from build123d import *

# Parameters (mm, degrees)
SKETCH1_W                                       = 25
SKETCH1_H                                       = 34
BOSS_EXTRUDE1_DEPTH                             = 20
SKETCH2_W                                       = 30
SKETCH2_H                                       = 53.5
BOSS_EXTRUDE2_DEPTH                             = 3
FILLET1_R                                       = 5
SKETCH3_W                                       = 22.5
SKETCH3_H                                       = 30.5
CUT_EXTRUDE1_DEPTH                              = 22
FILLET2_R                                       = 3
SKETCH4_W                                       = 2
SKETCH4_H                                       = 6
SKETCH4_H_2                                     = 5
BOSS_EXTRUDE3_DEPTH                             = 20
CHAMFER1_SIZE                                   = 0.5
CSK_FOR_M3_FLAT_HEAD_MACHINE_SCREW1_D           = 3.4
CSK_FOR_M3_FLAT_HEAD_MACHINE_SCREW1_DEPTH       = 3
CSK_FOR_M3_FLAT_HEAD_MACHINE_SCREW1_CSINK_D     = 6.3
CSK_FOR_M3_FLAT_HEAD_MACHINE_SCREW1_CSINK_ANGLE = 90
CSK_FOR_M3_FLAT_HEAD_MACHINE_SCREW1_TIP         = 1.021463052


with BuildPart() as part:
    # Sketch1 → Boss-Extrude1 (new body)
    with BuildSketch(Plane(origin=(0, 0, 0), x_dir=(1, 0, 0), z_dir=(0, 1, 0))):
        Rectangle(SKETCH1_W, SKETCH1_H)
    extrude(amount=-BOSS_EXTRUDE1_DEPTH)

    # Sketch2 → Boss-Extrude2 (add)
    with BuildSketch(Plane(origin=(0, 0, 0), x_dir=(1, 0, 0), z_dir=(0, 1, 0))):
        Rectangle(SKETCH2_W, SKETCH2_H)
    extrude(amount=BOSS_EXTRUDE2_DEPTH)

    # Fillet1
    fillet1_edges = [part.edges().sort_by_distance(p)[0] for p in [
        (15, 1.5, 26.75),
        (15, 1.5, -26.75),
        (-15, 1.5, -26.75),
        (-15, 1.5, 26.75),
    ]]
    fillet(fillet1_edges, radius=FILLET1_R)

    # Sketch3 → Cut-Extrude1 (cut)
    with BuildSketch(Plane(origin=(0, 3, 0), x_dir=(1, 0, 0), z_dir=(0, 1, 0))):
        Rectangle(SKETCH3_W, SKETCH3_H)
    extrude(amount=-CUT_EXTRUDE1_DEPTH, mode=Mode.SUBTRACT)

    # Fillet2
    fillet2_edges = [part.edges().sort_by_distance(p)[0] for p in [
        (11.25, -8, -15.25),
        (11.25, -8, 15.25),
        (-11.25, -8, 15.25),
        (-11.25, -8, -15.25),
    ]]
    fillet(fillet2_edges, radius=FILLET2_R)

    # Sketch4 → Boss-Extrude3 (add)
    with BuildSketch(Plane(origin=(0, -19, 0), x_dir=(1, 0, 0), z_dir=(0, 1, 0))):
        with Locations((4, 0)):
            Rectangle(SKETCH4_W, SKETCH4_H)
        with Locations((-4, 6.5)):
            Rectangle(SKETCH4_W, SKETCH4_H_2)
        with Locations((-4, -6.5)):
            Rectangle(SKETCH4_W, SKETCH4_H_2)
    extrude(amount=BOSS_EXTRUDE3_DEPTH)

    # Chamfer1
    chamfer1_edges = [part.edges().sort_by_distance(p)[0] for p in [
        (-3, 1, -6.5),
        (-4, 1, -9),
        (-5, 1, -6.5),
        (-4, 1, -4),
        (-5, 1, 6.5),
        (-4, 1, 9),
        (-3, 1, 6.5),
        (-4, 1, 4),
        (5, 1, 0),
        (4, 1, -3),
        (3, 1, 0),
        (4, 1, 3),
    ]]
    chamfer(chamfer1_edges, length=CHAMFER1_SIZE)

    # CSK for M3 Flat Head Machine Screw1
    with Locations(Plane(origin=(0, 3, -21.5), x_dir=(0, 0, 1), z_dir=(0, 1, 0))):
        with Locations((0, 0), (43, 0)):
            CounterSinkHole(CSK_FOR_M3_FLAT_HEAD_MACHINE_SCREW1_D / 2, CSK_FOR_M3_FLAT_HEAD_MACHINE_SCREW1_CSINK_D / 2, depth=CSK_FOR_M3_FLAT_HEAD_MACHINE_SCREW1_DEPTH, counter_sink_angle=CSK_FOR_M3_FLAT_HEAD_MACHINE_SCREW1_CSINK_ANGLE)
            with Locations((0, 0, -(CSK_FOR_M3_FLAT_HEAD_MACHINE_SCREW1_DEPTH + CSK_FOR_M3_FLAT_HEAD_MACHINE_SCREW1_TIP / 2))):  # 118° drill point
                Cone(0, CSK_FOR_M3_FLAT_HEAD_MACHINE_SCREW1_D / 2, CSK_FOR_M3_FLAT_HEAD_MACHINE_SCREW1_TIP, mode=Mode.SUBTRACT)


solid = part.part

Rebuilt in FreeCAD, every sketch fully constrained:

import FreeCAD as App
import Part
import Sketcher

V = App.Vector


def edges_at(feature, points):
    """Names of the edges that pass closest to the given points."""
    edges = feature.Shape.Edges
    near = lambda p: min(range(len(edges)), key=lambda i: edges[i].distToShape(Part.Vertex(*p))[0])
    return sorted({f"Edge{near(p) + 1}" for p in points})

doc = App.newDocument("Part")
body = doc.addObject("PartDesign::Body", "Body")

sketch1 = body.newObject("Sketcher::SketchObject", "Sketch")
sketch1.AttachmentSupport = (doc.getObject("XZ_Plane"), [""])
sketch1.MapMode = "FlatFace"
sketch1.addGeometry(Part.LineSegment(V(-12, -17, 0), V(-12, 17, 0)), False)
sketch1.addGeometry(Part.LineSegment(V(-12, 17, 0), V(12, 17, 0)), False)
sketch1.addGeometry(Part.LineSegment(V(12, 17, 0), V(12, -17, 0)), False)
sketch1.addGeometry(Part.LineSegment(V(12, -17, 0), V(-12, -17, 0)), False)
sketch1.addConstraint(Sketcher.Constraint("Coincident", 0, 2, 1, 1))
sketch1.addConstraint(Sketcher.Constraint("Coincident", 1, 2, 2, 1))
sketch1.addConstraint(Sketcher.Constraint("Coincident", 2, 2, 3, 1))
sketch1.addConstraint(Sketcher.Constraint("Coincident", 3, 2, 0, 1))
sketch1.addConstraint(Sketcher.Constraint("Vertical", 0))
sketch1.addConstraint(Sketcher.Constraint("Horizontal", 1))
sketch1.addConstraint(Sketcher.Constraint("Vertical", 2))
sketch1.addConstraint(Sketcher.Constraint("Horizontal", 3))
sketch1.addConstraint(Sketcher.Constraint("Symmetric", 0, 2, 2, 2, -1, 1))
sketch1.addConstraint(Sketcher.Constraint("DistanceX", 1, 1, 1, 2, 25.0))
sketch1.addConstraint(Sketcher.Constraint("DistanceY", 0, 1, 0, 2, 34.0))
pad1 = body.newObject("PartDesign::Pad", "Pad")
pad1.Profile = sketch1
pad1.Length = 20

sketch2 = body.newObject("Sketcher::SketchObject", "Sketch001")
sketch2.AttachmentSupport = (doc.getObject("XZ_Plane"), [""])
sketch2.MapMode = "FlatFace"
sketch2.addGeometry(Part.LineSegment(V(-15, -27, 0), V(-15, 27, 0)), False)
sketch2.addGeometry(Part.LineSegment(V(-15, 27, 0), V(15, 27, 0)), False)
sketch2.addGeometry(Part.LineSegment(V(15, 27, 0), V(15, -27, 0)), False)
sketch2.addGeometry(Part.LineSegment(V(15, -27, 0), V(-15, -27, 0)), False)
sketch2.addConstraint(Sketcher.Constraint("Coincident", 0, 2, 1, 1))
sketch2.addConstraint(Sketcher.Constraint("Coincident", 1, 2, 2, 1))
sketch2.addConstraint(Sketcher.Constraint("Coincident", 2, 2, 3, 1))
sketch2.addConstraint(Sketcher.Constraint("Coincident", 3, 2, 0, 1))
sketch2.addConstraint(Sketcher.Constraint("Vertical", 0))
sketch2.addConstraint(Sketcher.Constraint("Horizontal", 1))
sketch2.addConstraint(Sketcher.Constraint("Vertical", 2))
sketch2.addConstraint(Sketcher.Constraint("Horizontal", 3))
sketch2.addConstraint(Sketcher.Constraint("Symmetric", 0, 2, 2, 2, -1, 1))
sketch2.addConstraint(Sketcher.Constraint("DistanceX", 1, 1, 1, 2, 30.0))
sketch2.addConstraint(Sketcher.Constraint("DistanceY", 0, 1, 0, 2, 53.5))
pad2 = body.newObject("PartDesign::Pad", "Pad001")
pad2.Profile = sketch2
pad2.Length = 3
pad2.Reversed = True
doc.recompute()

fillet = body.newObject("PartDesign::Fillet", "Fillet")
fillet.Base = (pad2, edges_at(pad2, [
    (15, 1.5, 26.75),
    (15, 1.5, -26.75),
    (-15, 1.5, -26.75),
    (-15, 1.5, 26.75),
]))
fillet.Radius = 5

sketch3 = body.newObject("Sketcher::SketchObject", "Sketch002")
sketch3.AttachmentSupport = (doc.getObject("XZ_Plane"), [""])
sketch3.MapMode = "FlatFace"
sketch3.AttachmentOffset = App.Placement(V(0, 0, -3), App.Rotation())
sketch3.addGeometry(Part.LineSegment(V(-11, -15, 0), V(-11, 15, 0)), False)
sketch3.addGeometry(Part.LineSegment(V(-11, 15, 0), V(11, 15, 0)), False)
sketch3.addGeometry(Part.LineSegment(V(11, 15, 0), V(11, -15, 0)), False)
sketch3.addGeometry(Part.LineSegment(V(11, -15, 0), V(-11, -15, 0)), False)
sketch3.addConstraint(Sketcher.Constraint("Coincident", 0, 2, 1, 1))
sketch3.addConstraint(Sketcher.Constraint("Coincident", 1, 2, 2, 1))
sketch3.addConstraint(Sketcher.Constraint("Coincident", 2, 2, 3, 1))
sketch3.addConstraint(Sketcher.Constraint("Coincident", 3, 2, 0, 1))
sketch3.addConstraint(Sketcher.Constraint("Vertical", 0))
sketch3.addConstraint(Sketcher.Constraint("Horizontal", 1))
sketch3.addConstraint(Sketcher.Constraint("Vertical", 2))
sketch3.addConstraint(Sketcher.Constraint("Horizontal", 3))
sketch3.addConstraint(Sketcher.Constraint("Symmetric", 0, 2, 2, 2, -1, 1))
sketch3.addConstraint(Sketcher.Constraint("DistanceX", 1, 1, 1, 2, 22.5))
sketch3.addConstraint(Sketcher.Constraint("DistanceY", 0, 1, 0, 2, 30.5))
pocket1 = body.newObject("PartDesign::Pocket", "Pocket")
pocket1.Profile = sketch3
pocket1.Length = 22
pocket1.Reversed = True
doc.recompute()

fillet2 = body.newObject("PartDesign::Fillet", "Fillet001")
fillet2.Base = (pocket1, edges_at(pocket1, [
    (11.25, -8, -15.25),
    (11.25, -8, 15.25),
    (-11.25, -8, 15.25),
    (-11.25, -8, -15.25),
]))
fillet2.Radius = 3

sketch4 = body.newObject("Sketcher::SketchObject", "Sketch003")
sketch4.AttachmentSupport = (doc.getObject("XZ_Plane"), [""])
sketch4.MapMode = "FlatFace"
sketch4.AttachmentOffset = App.Placement(V(0, 0, 19), App.Rotation())
sketch4.addGeometry(Part.LineSegment(V(3, -3, 0), V(3, 3, 0)), False)
sketch4.addGeometry(Part.LineSegment(V(3, 3, 0), V(5, 3, 0)), False)
sketch4.addGeometry(Part.LineSegment(V(5, 3, 0), V(5, -3, 0)), False)
sketch4.addGeometry(Part.LineSegment(V(5, -3, 0), V(3, -3, 0)), False)
sketch4.addGeometry(Part.LineSegment(V(-5, -9, 0), V(-5, -4, 0)), False)
sketch4.addGeometry(Part.LineSegment(V(-5, -4, 0), V(-3, -4, 0)), False)
sketch4.addGeometry(Part.LineSegment(V(-3, -4, 0), V(-3, -9, 0)), False)
sketch4.addGeometry(Part.LineSegment(V(-3, -9, 0), V(-5, -9, 0)), False)
sketch4.addGeometry(Part.LineSegment(V(-5, 4, 0), V(-5, 9, 0)), False)
sketch4.addGeometry(Part.LineSegment(V(-5, 9, 0), V(-3, 9, 0)), False)
sketch4.addGeometry(Part.LineSegment(V(-3, 9, 0), V(-3, 4, 0)), False)
sketch4.addGeometry(Part.LineSegment(V(-3, 4, 0), V(-5, 4, 0)), False)
sketch4.addConstraint(Sketcher.Constraint("Coincident", 0, 2, 1, 1))
sketch4.addConstraint(Sketcher.Constraint("Coincident", 1, 2, 2, 1))
sketch4.addConstraint(Sketcher.Constraint("Coincident", 2, 2, 3, 1))
sketch4.addConstraint(Sketcher.Constraint("Coincident", 3, 2, 0, 1))
sketch4.addConstraint(Sketcher.Constraint("Coincident", 4, 2, 5, 1))
sketch4.addConstraint(Sketcher.Constraint("Coincident", 5, 2, 6, 1))
sketch4.addConstraint(Sketcher.Constraint("Coincident", 6, 2, 7, 1))
sketch4.addConstraint(Sketcher.Constraint("Coincident", 7, 2, 4, 1))
sketch4.addConstraint(Sketcher.Constraint("Coincident", 8, 2, 9, 1))
sketch4.addConstraint(Sketcher.Constraint("Coincident", 9, 2, 10, 1))
sketch4.addConstraint(Sketcher.Constraint("Coincident", 10, 2, 11, 1))
sketch4.addConstraint(Sketcher.Constraint("Coincident", 11, 2, 8, 1))
sketch4.addConstraint(Sketcher.Constraint("Vertical", 0))
sketch4.addConstraint(Sketcher.Constraint("Horizontal", 1))
sketch4.addConstraint(Sketcher.Constraint("Vertical", 2))
sketch4.addConstraint(Sketcher.Constraint("Horizontal", 3))
sketch4.addConstraint(Sketcher.Constraint("Vertical", 4))
sketch4.addConstraint(Sketcher.Constraint("Horizontal", 5))
sketch4.addConstraint(Sketcher.Constraint("Vertical", 6))
sketch4.addConstraint(Sketcher.Constraint("Horizontal", 7))
sketch4.addConstraint(Sketcher.Constraint("Vertical", 8))
sketch4.addConstraint(Sketcher.Constraint("Horizontal", 9))
sketch4.addConstraint(Sketcher.Constraint("Vertical", 10))
sketch4.addConstraint(Sketcher.Constraint("Horizontal", 11))
sketch4.addConstraint(Sketcher.Constraint("Symmetric", 7, 2, 8, 2, -1))
sketch4.addConstraint(Sketcher.Constraint("Symmetric", 5, 2, 10, 2, -1))
sketch4.addConstraint(Sketcher.Constraint("Equal", 3, 5))
sketch4.addConstraint(Sketcher.Constraint("DistanceX", 1, 1, 1, 2, 2.0))
sketch4.addConstraint(Sketcher.Constraint("DistanceY", 0, 1, 0, 2, 6.0))
sketch4.addConstraint(Sketcher.Constraint("DistanceY", 4, 1, 4, 2, 5.0))
sketch4.addConstraint(Sketcher.Constraint("DistanceX", -1, 1, 0, 2, 3.0))
sketch4.addConstraint(Sketcher.Constraint("DistanceY", -1, 1, 0, 2, 3.0))
sketch4.addConstraint(Sketcher.Constraint("DistanceX", 4, 2, -1, 1, 5.0))
sketch4.addConstraint(Sketcher.Constraint("DistanceY", 4, 2, -1, 1, 4.0))
pad3 = body.newObject("PartDesign::Pad", "Pad002")
pad3.Profile = sketch4
pad3.Length = 20
pad3.Reversed = True
doc.recompute()

chamfer = body.newObject("PartDesign::Chamfer", "Chamfer")
chamfer.Base = (pad3, edges_at(pad3, [
    (-3, 1, -6.5),
    (-4, 1, -9),
    (-5, 1, -6.5),
    (-4, 1, -4),
    (-5, 1, 6.5),
    (-4, 1, 9),
    (-3, 1, 6.5),
    (-4, 1, 4),
    (5, 1, 0),
    (4, 1, -3),
    (3, 1, 0),
    (4, 1, 3),
]))
chamfer.Size = 0.5

sketch5 = body.newObject("Sketcher::SketchObject", "Sketch004")
sketch5.AttachmentSupport = (doc.getObject("XZ_Plane"), [""])
sketch5.MapMode = "FlatFace"
sketch5.AttachmentOffset = App.Placement(V(0, 0, -3), App.Rotation())
sketch5.addGeometry(Part.Circle(V(0, -21.5, 0), V(0, 0, 1), 1.7), False)
sketch5.addGeometry(Part.Circle(V(0, 21.5, 0), V(0, 0, 1), 1.7), False)
sketch5.addConstraint(Sketcher.Constraint("Equal", 0, 1))
sketch5.addConstraint(Sketcher.Constraint("Symmetric", 0, 3, 1, 3, -1, 1))
sketch5.addConstraint(Sketcher.Constraint("PointOnObject", 0, 3, -2))
sketch5.addConstraint(Sketcher.Constraint("Diameter", 0, 3.4))
sketch5.addConstraint(Sketcher.Constraint("DistanceY", 0, 3, 1, 3, 43.0))
doc.recompute()
hole = body.newObject("PartDesign::Hole", "Hole")
hole.Profile = sketch5
hole.ThreadType = "None"
hole.Diameter = 3.4
hole.DepthType = "Dimension"
hole.Depth = 3
hole.DrillPoint = "Angled"
hole.DrillPointAngle = 118
hole.HoleCutType = "Countersink"
hole.HoleCutDiameter = 6.3
hole.HoleCutCountersinkAngle = 90
hole.Reversed = True

doc.recompute()
